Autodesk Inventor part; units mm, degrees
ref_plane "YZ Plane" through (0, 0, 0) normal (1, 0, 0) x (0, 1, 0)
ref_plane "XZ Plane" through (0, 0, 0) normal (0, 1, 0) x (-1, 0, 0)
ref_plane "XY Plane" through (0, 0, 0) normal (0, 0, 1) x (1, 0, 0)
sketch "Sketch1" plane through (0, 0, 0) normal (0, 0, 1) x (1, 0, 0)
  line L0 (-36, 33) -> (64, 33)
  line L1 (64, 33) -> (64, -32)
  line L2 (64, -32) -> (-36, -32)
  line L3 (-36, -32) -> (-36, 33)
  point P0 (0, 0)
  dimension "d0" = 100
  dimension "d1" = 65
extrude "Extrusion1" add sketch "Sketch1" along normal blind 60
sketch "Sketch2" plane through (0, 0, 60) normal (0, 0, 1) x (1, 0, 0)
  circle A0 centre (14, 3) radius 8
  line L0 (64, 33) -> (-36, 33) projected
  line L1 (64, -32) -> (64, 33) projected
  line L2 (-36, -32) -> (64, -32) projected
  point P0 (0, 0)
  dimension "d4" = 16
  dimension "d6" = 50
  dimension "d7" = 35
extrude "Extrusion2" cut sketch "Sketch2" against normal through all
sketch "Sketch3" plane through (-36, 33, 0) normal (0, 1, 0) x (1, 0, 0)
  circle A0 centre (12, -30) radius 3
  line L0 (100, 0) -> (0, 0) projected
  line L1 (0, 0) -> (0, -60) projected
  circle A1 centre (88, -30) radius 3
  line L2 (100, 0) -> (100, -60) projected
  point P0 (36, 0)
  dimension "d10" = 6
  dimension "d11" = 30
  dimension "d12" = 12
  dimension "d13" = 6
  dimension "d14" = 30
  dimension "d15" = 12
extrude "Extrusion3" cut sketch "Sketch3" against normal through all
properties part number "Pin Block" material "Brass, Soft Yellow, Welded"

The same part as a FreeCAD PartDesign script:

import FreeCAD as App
import Part
import Sketcher

V = App.Vector


def add_polygon(sketch, points):
    """Adds a closed chain of lines whose ends are joined by coincident constraints."""
    first, n = sketch.GeometryCount, len(points)
    for a, b in zip(points, points[1:] + points[:1]):
        sketch.addGeometry(Part.LineSegment(App.Vector(*a, 0), App.Vector(*b, 0)), False)
    for i in range(n):
        sketch.addConstraint(Sketcher.Constraint("Coincident", first + i, 2, first + (i + 1) % n, 1))

doc = App.newDocument("Part")
body = doc.addObject("PartDesign::Body", "Body")

sketch1 = body.newObject("Sketcher::SketchObject", "Sketch")
sketch1.AttachmentSupport = (doc.getObject("XY_Plane"), [""])
sketch1.MapMode = "FlatFace"
add_polygon(sketch1, [(64, 33), (-36, 33), (-36, -32), (64, -32)])
sketch1.addConstraint([
    Sketcher.Constraint("Horizontal", 0),
    Sketcher.Constraint("Vertical", 1),
    Sketcher.Constraint("Horizontal", 2),
    Sketcher.Constraint("Vertical", 3),
    Sketcher.Constraint("DistanceX", 0, 2, 0, 1, 100.0),
    Sketcher.Constraint("DistanceY", 1, 2, 1, 1, 65.0),
    Sketcher.Constraint("DistanceX", 0, 2, -1, 1, 36.0),
    Sketcher.Constraint("DistanceY", -1, 1, 0, 2, 33.0),
])
pad1 = body.newObject("PartDesign::Pad", "Pad")
pad1.Profile = sketch1
pad1.Length = 60

sketch2 = body.newObject("Sketcher::SketchObject", "Sketch001")
sketch2.AttachmentSupport = (doc.getObject("XY_Plane"), [""])
sketch2.MapMode = "FlatFace"
sketch2.AttachmentOffset = App.Placement(V(0, 0, 60), App.Rotation())
sketch2.addGeometry(Part.Circle(V(14, 3, 0), V(0, 0, 1), 8), False)
sketch2.addConstraint([
    Sketcher.Constraint("Diameter", 0, 16.0),
    Sketcher.Constraint("DistanceX", -1, 1, 0, 3, 14.0),
    Sketcher.Constraint("DistanceY", -1, 1, 0, 3, 3.0),
])
pocket1 = body.newObject("PartDesign::Pocket", "Pocket")
pocket1.Profile = sketch2
pocket1.Type = "ThroughAll"

sketch3 = body.newObject("Sketcher::SketchObject", "Sketch002")
sketch3.AttachmentSupport = (doc.getObject("XZ_Plane"), [""])
sketch3.MapMode = "FlatFace"
sketch3.AttachmentOffset = App.Placement(V(0, 0, -33), App.Rotation())
sketch3.addGeometry([
    Part.Circle(V(-24, 30, 0), V(0, 0, 1), 3),
    Part.Circle(V(52, 30, 0), V(0, 0, 1), 3),
], False)
sketch3.addConstraint([
    Sketcher.Constraint("Equal", 0, 1),
    Sketcher.Constraint("Horizontal", 0, 3, 1, 3),
    Sketcher.Constraint("Diameter", 0, 6.0),
    Sketcher.Constraint("DistanceY", -1, 1, 0, 3, 30.0),
    Sketcher.Constraint("DistanceX", 0, 3, -1, 1, 24.0),
    Sketcher.Constraint("DistanceX", -1, 1, 1, 3, 52.0),
])
pocket2 = body.newObject("PartDesign::Pocket", "Pocket001")
pocket2.Profile = sketch3
pocket2.Type = "ThroughAll"
pocket2.Reversed = True

doc.recompute()
